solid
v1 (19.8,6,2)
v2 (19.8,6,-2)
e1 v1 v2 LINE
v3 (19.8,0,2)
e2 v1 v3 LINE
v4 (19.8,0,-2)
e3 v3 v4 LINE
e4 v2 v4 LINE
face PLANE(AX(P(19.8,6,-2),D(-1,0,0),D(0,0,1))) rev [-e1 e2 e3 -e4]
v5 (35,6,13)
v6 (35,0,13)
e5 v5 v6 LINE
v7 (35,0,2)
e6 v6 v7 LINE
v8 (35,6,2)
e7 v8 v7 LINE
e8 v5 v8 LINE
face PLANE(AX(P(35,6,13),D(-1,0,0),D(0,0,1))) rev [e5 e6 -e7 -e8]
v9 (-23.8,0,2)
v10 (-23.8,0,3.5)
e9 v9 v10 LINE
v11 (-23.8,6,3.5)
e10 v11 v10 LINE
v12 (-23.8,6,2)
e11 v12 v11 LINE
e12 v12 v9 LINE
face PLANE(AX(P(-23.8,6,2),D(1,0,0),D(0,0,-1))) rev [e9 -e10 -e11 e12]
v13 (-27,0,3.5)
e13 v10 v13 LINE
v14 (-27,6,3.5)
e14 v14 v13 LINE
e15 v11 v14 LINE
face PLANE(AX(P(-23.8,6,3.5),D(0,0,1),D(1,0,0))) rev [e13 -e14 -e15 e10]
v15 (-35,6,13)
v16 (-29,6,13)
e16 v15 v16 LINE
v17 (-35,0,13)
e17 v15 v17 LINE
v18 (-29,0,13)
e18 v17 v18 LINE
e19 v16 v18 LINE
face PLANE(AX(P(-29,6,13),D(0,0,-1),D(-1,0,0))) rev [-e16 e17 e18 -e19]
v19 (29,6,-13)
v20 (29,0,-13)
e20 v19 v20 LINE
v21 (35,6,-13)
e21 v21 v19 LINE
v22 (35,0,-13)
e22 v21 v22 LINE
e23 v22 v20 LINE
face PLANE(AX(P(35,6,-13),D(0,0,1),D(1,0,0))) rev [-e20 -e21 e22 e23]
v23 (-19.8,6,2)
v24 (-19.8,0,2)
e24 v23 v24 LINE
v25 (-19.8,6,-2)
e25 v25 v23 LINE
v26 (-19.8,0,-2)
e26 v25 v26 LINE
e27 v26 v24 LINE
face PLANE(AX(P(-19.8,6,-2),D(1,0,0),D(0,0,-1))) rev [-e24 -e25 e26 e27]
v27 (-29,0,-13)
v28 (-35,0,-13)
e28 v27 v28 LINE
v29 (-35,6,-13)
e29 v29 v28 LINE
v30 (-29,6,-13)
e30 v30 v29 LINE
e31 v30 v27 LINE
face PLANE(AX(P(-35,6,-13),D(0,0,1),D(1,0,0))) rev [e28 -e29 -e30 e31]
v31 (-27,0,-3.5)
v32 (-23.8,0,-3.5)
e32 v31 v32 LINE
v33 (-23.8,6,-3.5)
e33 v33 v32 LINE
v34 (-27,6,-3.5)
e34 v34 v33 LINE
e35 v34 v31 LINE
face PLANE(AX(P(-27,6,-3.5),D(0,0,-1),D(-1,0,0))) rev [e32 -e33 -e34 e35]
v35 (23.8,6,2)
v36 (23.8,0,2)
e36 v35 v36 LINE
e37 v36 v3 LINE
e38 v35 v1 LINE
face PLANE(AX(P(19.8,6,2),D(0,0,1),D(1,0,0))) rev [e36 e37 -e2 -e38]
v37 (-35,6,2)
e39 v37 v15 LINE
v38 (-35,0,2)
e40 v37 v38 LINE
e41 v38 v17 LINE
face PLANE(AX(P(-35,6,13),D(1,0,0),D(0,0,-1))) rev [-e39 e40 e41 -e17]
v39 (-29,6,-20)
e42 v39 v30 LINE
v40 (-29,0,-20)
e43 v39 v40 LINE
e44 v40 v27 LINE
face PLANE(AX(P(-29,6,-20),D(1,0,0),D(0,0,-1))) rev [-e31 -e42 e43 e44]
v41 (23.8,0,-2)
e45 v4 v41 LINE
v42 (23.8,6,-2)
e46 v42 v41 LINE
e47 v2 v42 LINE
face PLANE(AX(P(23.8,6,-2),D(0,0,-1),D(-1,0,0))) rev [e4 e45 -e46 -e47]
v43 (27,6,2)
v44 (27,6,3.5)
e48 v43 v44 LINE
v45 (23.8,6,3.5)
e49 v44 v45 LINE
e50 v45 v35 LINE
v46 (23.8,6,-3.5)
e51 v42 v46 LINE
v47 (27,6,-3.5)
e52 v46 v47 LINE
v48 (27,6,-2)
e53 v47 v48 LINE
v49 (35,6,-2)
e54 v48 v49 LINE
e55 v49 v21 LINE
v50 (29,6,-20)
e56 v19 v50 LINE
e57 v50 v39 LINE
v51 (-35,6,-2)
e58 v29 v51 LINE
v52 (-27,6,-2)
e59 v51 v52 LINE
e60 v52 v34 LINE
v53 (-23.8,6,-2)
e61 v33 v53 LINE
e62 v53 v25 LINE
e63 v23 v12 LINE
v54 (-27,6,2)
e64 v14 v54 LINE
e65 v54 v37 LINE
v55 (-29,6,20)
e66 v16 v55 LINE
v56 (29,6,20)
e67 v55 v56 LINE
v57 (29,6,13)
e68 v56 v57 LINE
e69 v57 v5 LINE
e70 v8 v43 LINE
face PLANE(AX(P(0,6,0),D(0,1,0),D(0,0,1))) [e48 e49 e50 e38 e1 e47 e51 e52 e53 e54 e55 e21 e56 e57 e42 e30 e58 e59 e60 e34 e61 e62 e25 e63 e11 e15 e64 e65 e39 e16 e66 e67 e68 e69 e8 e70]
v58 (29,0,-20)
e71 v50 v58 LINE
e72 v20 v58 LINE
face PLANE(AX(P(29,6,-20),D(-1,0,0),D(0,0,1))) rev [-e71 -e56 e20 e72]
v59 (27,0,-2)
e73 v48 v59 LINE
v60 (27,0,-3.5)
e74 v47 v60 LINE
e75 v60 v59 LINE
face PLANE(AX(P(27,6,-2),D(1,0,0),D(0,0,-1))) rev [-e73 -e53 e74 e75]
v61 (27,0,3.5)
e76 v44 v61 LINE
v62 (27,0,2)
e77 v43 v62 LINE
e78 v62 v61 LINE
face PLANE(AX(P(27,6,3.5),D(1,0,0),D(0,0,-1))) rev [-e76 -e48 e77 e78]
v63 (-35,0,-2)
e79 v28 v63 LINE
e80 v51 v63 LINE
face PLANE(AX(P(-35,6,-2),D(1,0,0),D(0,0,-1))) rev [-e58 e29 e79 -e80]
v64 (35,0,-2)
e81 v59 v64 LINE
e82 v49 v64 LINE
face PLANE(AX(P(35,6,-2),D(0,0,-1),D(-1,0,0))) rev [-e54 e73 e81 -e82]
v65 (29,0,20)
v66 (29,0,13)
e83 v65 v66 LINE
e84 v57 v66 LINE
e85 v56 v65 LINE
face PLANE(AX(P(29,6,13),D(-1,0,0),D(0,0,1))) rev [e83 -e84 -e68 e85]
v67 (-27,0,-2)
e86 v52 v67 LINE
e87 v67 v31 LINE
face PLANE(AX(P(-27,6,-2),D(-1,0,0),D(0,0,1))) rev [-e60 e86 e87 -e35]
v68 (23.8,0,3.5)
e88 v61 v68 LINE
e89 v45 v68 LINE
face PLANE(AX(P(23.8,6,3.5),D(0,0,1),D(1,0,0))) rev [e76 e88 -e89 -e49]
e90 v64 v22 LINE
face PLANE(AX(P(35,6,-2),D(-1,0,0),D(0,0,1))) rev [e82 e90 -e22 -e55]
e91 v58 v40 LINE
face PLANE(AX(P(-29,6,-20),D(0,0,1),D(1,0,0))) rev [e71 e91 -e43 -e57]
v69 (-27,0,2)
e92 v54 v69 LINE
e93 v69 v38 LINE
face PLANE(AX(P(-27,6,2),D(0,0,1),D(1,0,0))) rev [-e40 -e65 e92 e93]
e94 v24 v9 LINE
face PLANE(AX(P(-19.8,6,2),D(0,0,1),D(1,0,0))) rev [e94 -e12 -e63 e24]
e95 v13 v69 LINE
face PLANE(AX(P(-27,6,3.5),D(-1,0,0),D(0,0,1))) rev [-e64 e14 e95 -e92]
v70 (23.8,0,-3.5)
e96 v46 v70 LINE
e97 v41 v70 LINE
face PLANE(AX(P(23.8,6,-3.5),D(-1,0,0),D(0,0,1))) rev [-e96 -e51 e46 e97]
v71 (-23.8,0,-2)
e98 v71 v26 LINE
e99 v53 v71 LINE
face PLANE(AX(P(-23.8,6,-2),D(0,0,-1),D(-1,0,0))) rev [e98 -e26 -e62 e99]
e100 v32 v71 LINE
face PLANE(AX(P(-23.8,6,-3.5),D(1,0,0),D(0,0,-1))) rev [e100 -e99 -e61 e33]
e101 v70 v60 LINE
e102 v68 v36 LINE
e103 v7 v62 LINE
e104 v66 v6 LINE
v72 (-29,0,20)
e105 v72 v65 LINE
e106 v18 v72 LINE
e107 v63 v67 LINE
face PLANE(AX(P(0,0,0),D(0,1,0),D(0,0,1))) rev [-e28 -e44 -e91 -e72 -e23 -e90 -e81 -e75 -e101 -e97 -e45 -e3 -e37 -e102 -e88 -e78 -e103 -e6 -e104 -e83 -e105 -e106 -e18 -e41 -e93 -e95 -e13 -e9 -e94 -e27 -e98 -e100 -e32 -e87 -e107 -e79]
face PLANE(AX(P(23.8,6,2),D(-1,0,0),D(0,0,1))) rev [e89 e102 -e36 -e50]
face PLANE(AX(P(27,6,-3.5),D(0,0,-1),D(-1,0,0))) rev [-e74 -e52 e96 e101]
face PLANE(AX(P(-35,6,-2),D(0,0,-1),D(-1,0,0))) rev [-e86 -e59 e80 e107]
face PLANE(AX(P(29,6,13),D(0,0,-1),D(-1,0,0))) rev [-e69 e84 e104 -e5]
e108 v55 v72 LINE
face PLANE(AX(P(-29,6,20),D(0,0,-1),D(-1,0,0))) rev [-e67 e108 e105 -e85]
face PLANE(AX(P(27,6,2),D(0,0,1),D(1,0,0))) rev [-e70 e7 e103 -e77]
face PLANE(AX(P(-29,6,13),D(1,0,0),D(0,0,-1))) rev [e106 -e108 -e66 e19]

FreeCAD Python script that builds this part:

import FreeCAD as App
import Part
import Sketcher
Q = App.Units.Quantity

doc = App.newDocument("Part")
body = doc.addObject("PartDesign::Body", "Body")

# Sketch on XZ plane
sketch1 = body.newObject("Sketcher::SketchObject", "Sketch")
sketch1.AttachmentSupport = (doc.getObject("XZ_Plane"), [""])
sketch1.MapMode = "FlatFace"
sketch1.addGeometry(Part.LineSegment(App.Vector(29, -20, 0), App.Vector(-29, -20, 0)), False)
sketch1.addGeometry(Part.LineSegment(App.Vector(-29, -20, 0), App.Vector(-29, -13, 0)), False)
sketch1.addGeometry(Part.LineSegment(App.Vector(-29, -13, 0), App.Vector(-35, -13, 0)), False)
sketch1.addGeometry(Part.LineSegment(App.Vector(-35, -13, 0), App.Vector(-35, -2, 0)), False)
sketch1.addGeometry(Part.LineSegment(App.Vector(-35, -2, 0), App.Vector(-27, -2, 0)), False)
sketch1.addGeometry(Part.LineSegment(App.Vector(-27, -2, 0), App.Vector(-27, -3.5, 0)), False)
sketch1.addGeometry(Part.LineSegment(App.Vector(-27, -3.5, 0), App.Vector(-23.8, -3.5, 0)), False)
sketch1.addGeometry(Part.LineSegment(App.Vector(-23.8, -3.5, 0), App.Vector(-23.8, -2, 0)), False)
sketch1.addGeometry(Part.LineSegment(App.Vector(-23.8, -2, 0), App.Vector(-19.8, -2, 0)), False)
sketch1.addGeometry(Part.LineSegment(App.Vector(-19.8, -2, 0), App.Vector(-19.8, 2, 0)), False)
sketch1.addGeometry(Part.LineSegment(App.Vector(-19.8, 2, 0), App.Vector(-23.8, 2, 0)), False)
sketch1.addGeometry(Part.LineSegment(App.Vector(-23.8, 2, 0), App.Vector(-23.8, 3.5, 0)), False)
sketch1.addGeometry(Part.LineSegment(App.Vector(-23.8, 3.5, 0), App.Vector(-27, 3.5, 0)), False)
sketch1.addGeometry(Part.LineSegment(App.Vector(-27, 3.5, 0), App.Vector(-27, 2, 0)), False)
sketch1.addGeometry(Part.LineSegment(App.Vector(-27, 2, 0), App.Vector(-35, 2, 0)), False)
sketch1.addGeometry(Part.LineSegment(App.Vector(-35, 2, 0), App.Vector(-35, 13, 0)), False)
sketch1.addGeometry(Part.LineSegment(App.Vector(-35, 13, 0), App.Vector(-29, 13, 0)), False)
sketch1.addGeometry(Part.LineSegment(App.Vector(-29, 13, 0), App.Vector(-29, 20, 0)), False)
sketch1.addGeometry(Part.LineSegment(App.Vector(-29, 20, 0), App.Vector(29, 20, 0)), False)
sketch1.addGeometry(Part.LineSegment(App.Vector(29, 20, 0), App.Vector(29, 13, 0)), False)
sketch1.addGeometry(Part.LineSegment(App.Vector(29, 13, 0), App.Vector(35, 13, 0)), False)
sketch1.addGeometry(Part.LineSegment(App.Vector(35, 13, 0), App.Vector(35, 2, 0)), False)
sketch1.addGeometry(Part.LineSegment(App.Vector(35, 2, 0), App.Vector(27, 2, 0)), False)
sketch1.addGeometry(Part.LineSegment(App.Vector(27, 2, 0), App.Vector(27, 3.5, 0)), False)
sketch1.addGeometry(Part.LineSegment(App.Vector(27, 3.5, 0), App.Vector(23.8, 3.5, 0)), False)
sketch1.addGeometry(Part.LineSegment(App.Vector(23.8, 3.5, 0), App.Vector(23.8, 2, 0)), False)
sketch1.addGeometry(Part.LineSegment(App.Vector(23.8, 2, 0), App.Vector(19.8, 2, 0)), False)
sketch1.addGeometry(Part.LineSegment(App.Vector(19.8, 2, 0), App.Vector(19.8, -2, 0)), False)
sketch1.addGeometry(Part.LineSegment(App.Vector(19.8, -2, 0), App.Vector(23.8, -2, 0)), False)
sketch1.addGeometry(Part.LineSegment(App.Vector(23.8, -2, 0), App.Vector(23.8, -3.5, 0)), False)
sketch1.addGeometry(Part.LineSegment(App.Vector(23.8, -3.5, 0), App.Vector(27, -3.5, 0)), False)
sketch1.addGeometry(Part.LineSegment(App.Vector(27, -3.5, 0), App.Vector(27, -2, 0)), False)
sketch1.addGeometry(Part.LineSegment(App.Vector(27, -2, 0), App.Vector(35, -2, 0)), False)
sketch1.addGeometry(Part.LineSegment(App.Vector(35, -2, 0), App.Vector(35, -13, 0)), False)
sketch1.addGeometry(Part.LineSegment(App.Vector(35, -13, 0), App.Vector(29, -13, 0)), False)
sketch1.addGeometry(Part.LineSegment(App.Vector(29, -13, 0), App.Vector(29, -20, 0)), False)
sketch1.addConstraint(Sketcher.Constraint("Coincident", 0, 2, 1, 1))
sketch1.addConstraint(Sketcher.Constraint("Coincident", 1, 2, 2, 1))
sketch1.addConstraint(Sketcher.Constraint("Coincident", 2, 2, 3, 1))
sketch1.addConstraint(Sketcher.Constraint("Coincident", 3, 2, 4, 1))
sketch1.addConstraint(Sketcher.Constraint("Coincident", 4, 2, 5, 1))
sketch1.addConstraint(Sketcher.Constraint("Coincident", 5, 2, 6, 1))
sketch1.addConstraint(Sketcher.Constraint("Coincident", 6, 2, 7, 1))
sketch1.addConstraint(Sketcher.Constraint("Coincident", 7, 2, 8, 1))
sketch1.addConstraint(Sketcher.Constraint("Coincident", 8, 2, 9, 1))
sketch1.addConstraint(Sketcher.Constraint("Coincident", 9, 2, 10, 1))
sketch1.addConstraint(Sketcher.Constraint("Coincident", 10, 2, 11, 1))
sketch1.addConstraint(Sketcher.Constraint("Coincident", 11, 2, 12, 1))
sketch1.addConstraint(Sketcher.Constraint("Coincident", 12, 2, 13, 1))
sketch1.addConstraint(Sketcher.Constraint("Coincident", 13, 2, 14, 1))
sketch1.addConstraint(Sketcher.Constraint("Coincident", 14, 2, 15, 1))
sketch1.addConstraint(Sketcher.Constraint("Coincident", 15, 2, 16, 1))
sketch1.addConstraint(Sketcher.Constraint("Coincident", 16, 2, 17, 1))
sketch1.addConstraint(Sketcher.Constraint("Coincident", 17, 2, 18, 1))
sketch1.addConstraint(Sketcher.Constraint("Coincident", 18, 2, 19, 1))
sketch1.addConstraint(Sketcher.Constraint("Coincident", 19, 2, 20, 1))
sketch1.addConstraint(Sketcher.Constraint("Coincident", 20, 2, 21, 1))
sketch1.addConstraint(Sketcher.Constraint("Coincident", 21, 2, 22, 1))
sketch1.addConstraint(Sketcher.Constraint("Coincident", 22, 2, 23, 1))
sketch1.addConstraint(Sketcher.Constraint("Coincident", 23, 2, 24, 1))
sketch1.addConstraint(Sketcher.Constraint("Coincident", 24, 2, 25, 1))
sketch1.addConstraint(Sketcher.Constraint("Coincident", 25, 2, 26, 1))
sketch1.addConstraint(Sketcher.Constraint("Coincident", 26, 2, 27, 1))
sketch1.addConstraint(Sketcher.Constraint("Coincident", 27, 2, 28, 1))
sketch1.addConstraint(Sketcher.Constraint("Coincident", 28, 2, 29, 1))
sketch1.addConstraint(Sketcher.Constraint("Coincident", 29, 2, 30, 1))
sketch1.addConstraint(Sketcher.Constraint("Coincident", 30, 2, 31, 1))
sketch1.addConstraint(Sketcher.Constraint("Coincident", 31, 2, 32, 1))
sketch1.addConstraint(Sketcher.Constraint("Coincident", 32, 2, 33, 1))
sketch1.addConstraint(Sketcher.Constraint("Coincident", 33, 2, 34, 1))
sketch1.addConstraint(Sketcher.Constraint("Coincident", 34, 2, 35, 1))
sketch1.addConstraint(Sketcher.Constraint("Coincident", 35, 2, 0, 1))
sketch1.addConstraint(Sketcher.Constraint("Horizontal", 0))
sketch1.addConstraint(Sketcher.Constraint("Vertical", 1))
sketch1.addConstraint(Sketcher.Constraint("Horizontal", 2))
sketch1.addConstraint(Sketcher.Constraint("Vertical", 3))
sketch1.addConstraint(Sketcher.Constraint("Horizontal", 4))
sketch1.addConstraint(Sketcher.Constraint("Vertical", 5))
sketch1.addConstraint(Sketcher.Constraint("Horizontal", 6))
sketch1.addConstraint(Sketcher.Constraint("Vertical", 7))
sketch1.addConstraint(Sketcher.Constraint("Horizontal", 8))
sketch1.addConstraint(Sketcher.Constraint("Vertical", 9))
sketch1.addConstraint(Sketcher.Constraint("Horizontal", 10))
sketch1.addConstraint(Sketcher.Constraint("Vertical", 11))
sketch1.addConstraint(Sketcher.Constraint("Horizontal", 12))
sketch1.addConstraint(Sketcher.Constraint("Vertical", 13))
sketch1.addConstraint(Sketcher.Constraint("Horizontal", 14))
sketch1.addConstraint(Sketcher.Constraint("Vertical", 15))
sketch1.addConstraint(Sketcher.Constraint("Horizontal", 16))
sketch1.addConstraint(Sketcher.Constraint("Vertical", 17))
sketch1.addConstraint(Sketcher.Constraint("Horizontal", 18))
sketch1.addConstraint(Sketcher.Constraint("Vertical", 19))
sketch1.addConstraint(Sketcher.Constraint("Horizontal", 20))
sketch1.addConstraint(Sketcher.Constraint("Vertical", 21))
sketch1.addConstraint(Sketcher.Constraint("Horizontal", 22))
sketch1.addConstraint(Sketcher.Constraint("Vertical", 23))
sketch1.addConstraint(Sketcher.Constraint("Horizontal", 24))
sketch1.addConstraint(Sketcher.Constraint("Vertical", 25))
sketch1.addConstraint(Sketcher.Constraint("Horizontal", 26))
sketch1.addConstraint(Sketcher.Constraint("Vertical", 27))
sketch1.addConstraint(Sketcher.Constraint("Horizontal", 28))
sketch1.addConstraint(Sketcher.Constraint("Vertical", 29))
sketch1.addConstraint(Sketcher.Constraint("Horizontal", 30))
sketch1.addConstraint(Sketcher.Constraint("Vertical", 31))
sketch1.addConstraint(Sketcher.Constraint("Horizontal", 32))
sketch1.addConstraint(Sketcher.Constraint("Vertical", 33))
sketch1.addConstraint(Sketcher.Constraint("Horizontal", 34))
sketch1.addConstraint(Sketcher.Constraint("Vertical", 35))
sketch1.addConstraint(Sketcher.Constraint("Symmetric", 0, 2, 18, 2, -1, 1))
sketch1.addConstraint(Sketcher.Constraint("Symmetric", 2, 2, 20, 2, -1, 1))
sketch1.addConstraint(Sketcher.Constraint("Symmetric", 4, 2, 22, 2, -1, 1))
sketch1.addConstraint(Sketcher.Constraint("Symmetric", 6, 2, 24, 2, -1, 1))
sketch1.addConstraint(Sketcher.Constraint("Symmetric", 8, 2, 26, 2, -1, 1))
sketch1.addConstraint(Sketcher.Constraint("Symmetric", 10, 2, 28, 2, -1, 1))
sketch1.addConstraint(Sketcher.Constraint("Symmetric", 12, 2, 30, 2, -1, 1))
sketch1.addConstraint(Sketcher.Constraint("Symmetric", 14, 2, 32, 2, -1, 1))
sketch1.addConstraint(Sketcher.Constraint("Symmetric", 16, 2, 34, 2, -1, 1))
sketch1.addConstraint(Sketcher.Constraint("Symmetric", 16, 2, 19, 2, -2))
sketch1.addConstraint(Sketcher.Constraint("Symmetric", 14, 2, 21, 2, -2))
sketch1.addConstraint(Sketcher.Constraint("Symmetric", 12, 2, 23, 2, -2))
sketch1.addConstraint(Sketcher.Constraint("Symmetric", 10, 2, 25, 2, -2))
sketch1.addConstraint(Sketcher.Constraint("Horizontal", 4, 2, 7, 2))
sketch1.addConstraint(Sketcher.Constraint("Equal", 28, 9))
sketch1.addConstraint(Sketcher.Constraint("DistanceX", 0, 2, 0, 1, Q("58 mm")))
sketch1.addConstraint(Sketcher.Constraint("DistanceX", 2, 2, 2, 1, Q("6 mm")))
sketch1.addConstraint(Sketcher.Constraint("DistanceX", 4, 1, 4, 2, Q("8 mm")))
sketch1.addConstraint(Sketcher.Constraint("DistanceX", 8, 1, 8, 2, Q("4 mm")))
sketch1.addConstraint(Sketcher.Constraint("DistanceY", 1, 1, 1, 2, Q("7 mm")))
sketch1.addConstraint(Sketcher.Constraint("DistanceY", 3, 1, 3, 2, Q("11 mm")))
sketch1.addConstraint(Sketcher.Constraint("DistanceX", 6, 1, 6, 2, Q("3.2 mm")))
sketch1.addConstraint(Sketcher.Constraint("DistanceY", 5, 2, 5, 1, Q("1.5 mm")))
pad1 = body.newObject("PartDesign::Pad", "Pad")
pad1.Profile = sketch1
pad1.Length = 6
pad1.Reversed = True

doc.recompute()
